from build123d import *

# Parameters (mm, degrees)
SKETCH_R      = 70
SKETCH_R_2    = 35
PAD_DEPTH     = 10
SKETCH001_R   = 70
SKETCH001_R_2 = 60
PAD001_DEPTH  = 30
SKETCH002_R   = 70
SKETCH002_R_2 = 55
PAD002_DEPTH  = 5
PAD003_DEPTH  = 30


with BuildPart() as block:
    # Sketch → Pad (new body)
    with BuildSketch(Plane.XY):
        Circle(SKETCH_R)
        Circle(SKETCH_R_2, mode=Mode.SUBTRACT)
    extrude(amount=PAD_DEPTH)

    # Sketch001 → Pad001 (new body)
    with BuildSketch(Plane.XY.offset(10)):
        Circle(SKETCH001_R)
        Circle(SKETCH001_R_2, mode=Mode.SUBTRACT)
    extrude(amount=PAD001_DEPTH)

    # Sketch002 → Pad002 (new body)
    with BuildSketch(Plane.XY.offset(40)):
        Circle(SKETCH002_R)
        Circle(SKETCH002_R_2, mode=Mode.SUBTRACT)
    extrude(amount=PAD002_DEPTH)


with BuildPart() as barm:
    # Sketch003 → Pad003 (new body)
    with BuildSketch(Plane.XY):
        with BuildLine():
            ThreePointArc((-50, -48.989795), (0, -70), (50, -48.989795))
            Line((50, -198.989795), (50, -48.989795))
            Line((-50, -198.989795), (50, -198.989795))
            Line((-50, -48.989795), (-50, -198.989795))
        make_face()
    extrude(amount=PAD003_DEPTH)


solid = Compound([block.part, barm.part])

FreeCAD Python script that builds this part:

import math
import FreeCAD as App
import Part
import Sketcher
Q = App.Units.Quantity

doc = App.newDocument("Part")
body = doc.addObject("PartDesign::Body", "Body")

# Sketch on XY plane
sketch1 = body.newObject("Sketcher::SketchObject", "Sketch")
sketch1.AttachmentSupport = (doc.getObject("XY_Plane"), [""])
sketch1.MapMode = "FlatFace"
sketch1.addGeometry([
    Part.Circle(App.Vector(0, 0, 0), App.Vector(0, 0, 1), 70),
    Part.Circle(App.Vector(0, 0, 0), App.Vector(0, 0, 1), 35),
], False)
sketch1.addConstraint([
    Sketcher.Constraint("Coincident", 0, 3, -1, 1),
    Sketcher.Constraint("Coincident", 1, 3, -1, 1),
    Sketcher.Constraint("Diameter", 0, Q("140 mm")),
    Sketcher.Constraint("Diameter", 1, Q("70 mm")),
])
pad1 = body.newObject("PartDesign::Pad", "Pad")
pad1.Profile = sketch1
pad1.Length = 10

# Sketch on XY plane
sketch2 = body.newObject("Sketcher::SketchObject", "Sketch001")
sketch2.AttachmentSupport = (doc.getObject("XY_Plane"), [""])
sketch2.MapMode = "FlatFace"
sketch2.AttachmentOffset = App.Placement(App.Vector(0, 0, 10), App.Rotation())
sketch2.addGeometry([
    Part.Circle(App.Vector(0, 0, 0), App.Vector(0, 0, 1), 70),
    Part.Circle(App.Vector(0, 0, 0), App.Vector(0, 0, 1), 60),
], False)
sketch2.addConstraint([
    Sketcher.Constraint("Coincident", 0, 3, -1, 1),
    Sketcher.Constraint("Coincident", 1, 3, -1, 1),
    Sketcher.Constraint("Diameter", 0, Q("140 mm")),
    Sketcher.Constraint("Diameter", 1, Q("120 mm")),
])
pad2 = body.newObject("PartDesign::Pad", "Pad001")
pad2.Profile = sketch2
pad2.Length = 30

# Sketch on XY plane
sketch3 = body.newObject("Sketcher::SketchObject", "Sketch002")
sketch3.AttachmentSupport = (doc.getObject("XY_Plane"), [""])
sketch3.MapMode = "FlatFace"
sketch3.AttachmentOffset = App.Placement(App.Vector(0, 0, 40), App.Rotation())
sketch3.addGeometry([
    Part.Circle(App.Vector(0, 0, 0), App.Vector(0, 0, 1), 70),
    Part.Circle(App.Vector(0, 0, 0), App.Vector(0, 0, 1), 55),
], False)
sketch3.addConstraint([
    Sketcher.Constraint("Coincident", 0, 3, -1, 1),
    Sketcher.Constraint("Coincident", 1, 3, -1, 1),
    Sketcher.Constraint("Diameter", 0, Q("140 mm")),
    Sketcher.Constraint("Diameter", 1, Q("110 mm")),
])
pad3 = body.newObject("PartDesign::Pad", "Pad002")
pad3.Profile = sketch3
pad3.Length = 5
body2 = doc.addObject("PartDesign::Body", "Body001")

# Sketch on XY plane
sketch4 = body2.newObject("Sketcher::SketchObject", "Sketch003")
sketch4.AttachmentSupport = (doc.getObject("XY_Plane001"), [""])
sketch4.MapMode = "FlatFace"
sketch4.addGeometry([
    Part.ArcOfCircle(Part.Circle(App.Vector(0, 0, 0), App.Vector(0, 0, 1), 70), math.radians(-135.584691), math.radians(-44.415309)),
    Part.LineSegment(App.Vector(-50, -48.989795, 0), App.Vector(-50, -198.989795, 0)),
    Part.LineSegment(App.Vector(-50, -198.989795, 0), App.Vector(50, -198.989795, 0)),
    Part.LineSegment(App.Vector(50, -198.989795, 0), App.Vector(50, -48.989795, 0)),
], False)
sketch4.addConstraint([
    Sketcher.Constraint("Coincident", 0, 1, 1, 1),
    Sketcher.Constraint("Coincident", 1, 2, 2, 1),
    Sketcher.Constraint("Coincident", 2, 2, 3, 1),
    Sketcher.Constraint("Coincident", 3, 2, 0, 2),
    Sketcher.Constraint("Vertical", 1),
    Sketcher.Constraint("Horizontal", 2),
    Sketcher.Constraint("Vertical", 3),
    Sketcher.Constraint("Coincident", 0, 3, -1, 1),
    Sketcher.Constraint("Horizontal", 0, 1, 3, 2),
    Sketcher.Constraint("Radius", 0, Q("70 mm")),
    Sketcher.Constraint("DistanceX", 2, 1, 2, 2, Q("100 mm")),
    Sketcher.Constraint("DistanceY", 1, 2, 1, 1, Q("150 mm")),
])
pad4 = body2.newObject("PartDesign::Pad", "Pad003")
pad4.Profile = sketch4
pad4.Length = 30

doc.recompute()
